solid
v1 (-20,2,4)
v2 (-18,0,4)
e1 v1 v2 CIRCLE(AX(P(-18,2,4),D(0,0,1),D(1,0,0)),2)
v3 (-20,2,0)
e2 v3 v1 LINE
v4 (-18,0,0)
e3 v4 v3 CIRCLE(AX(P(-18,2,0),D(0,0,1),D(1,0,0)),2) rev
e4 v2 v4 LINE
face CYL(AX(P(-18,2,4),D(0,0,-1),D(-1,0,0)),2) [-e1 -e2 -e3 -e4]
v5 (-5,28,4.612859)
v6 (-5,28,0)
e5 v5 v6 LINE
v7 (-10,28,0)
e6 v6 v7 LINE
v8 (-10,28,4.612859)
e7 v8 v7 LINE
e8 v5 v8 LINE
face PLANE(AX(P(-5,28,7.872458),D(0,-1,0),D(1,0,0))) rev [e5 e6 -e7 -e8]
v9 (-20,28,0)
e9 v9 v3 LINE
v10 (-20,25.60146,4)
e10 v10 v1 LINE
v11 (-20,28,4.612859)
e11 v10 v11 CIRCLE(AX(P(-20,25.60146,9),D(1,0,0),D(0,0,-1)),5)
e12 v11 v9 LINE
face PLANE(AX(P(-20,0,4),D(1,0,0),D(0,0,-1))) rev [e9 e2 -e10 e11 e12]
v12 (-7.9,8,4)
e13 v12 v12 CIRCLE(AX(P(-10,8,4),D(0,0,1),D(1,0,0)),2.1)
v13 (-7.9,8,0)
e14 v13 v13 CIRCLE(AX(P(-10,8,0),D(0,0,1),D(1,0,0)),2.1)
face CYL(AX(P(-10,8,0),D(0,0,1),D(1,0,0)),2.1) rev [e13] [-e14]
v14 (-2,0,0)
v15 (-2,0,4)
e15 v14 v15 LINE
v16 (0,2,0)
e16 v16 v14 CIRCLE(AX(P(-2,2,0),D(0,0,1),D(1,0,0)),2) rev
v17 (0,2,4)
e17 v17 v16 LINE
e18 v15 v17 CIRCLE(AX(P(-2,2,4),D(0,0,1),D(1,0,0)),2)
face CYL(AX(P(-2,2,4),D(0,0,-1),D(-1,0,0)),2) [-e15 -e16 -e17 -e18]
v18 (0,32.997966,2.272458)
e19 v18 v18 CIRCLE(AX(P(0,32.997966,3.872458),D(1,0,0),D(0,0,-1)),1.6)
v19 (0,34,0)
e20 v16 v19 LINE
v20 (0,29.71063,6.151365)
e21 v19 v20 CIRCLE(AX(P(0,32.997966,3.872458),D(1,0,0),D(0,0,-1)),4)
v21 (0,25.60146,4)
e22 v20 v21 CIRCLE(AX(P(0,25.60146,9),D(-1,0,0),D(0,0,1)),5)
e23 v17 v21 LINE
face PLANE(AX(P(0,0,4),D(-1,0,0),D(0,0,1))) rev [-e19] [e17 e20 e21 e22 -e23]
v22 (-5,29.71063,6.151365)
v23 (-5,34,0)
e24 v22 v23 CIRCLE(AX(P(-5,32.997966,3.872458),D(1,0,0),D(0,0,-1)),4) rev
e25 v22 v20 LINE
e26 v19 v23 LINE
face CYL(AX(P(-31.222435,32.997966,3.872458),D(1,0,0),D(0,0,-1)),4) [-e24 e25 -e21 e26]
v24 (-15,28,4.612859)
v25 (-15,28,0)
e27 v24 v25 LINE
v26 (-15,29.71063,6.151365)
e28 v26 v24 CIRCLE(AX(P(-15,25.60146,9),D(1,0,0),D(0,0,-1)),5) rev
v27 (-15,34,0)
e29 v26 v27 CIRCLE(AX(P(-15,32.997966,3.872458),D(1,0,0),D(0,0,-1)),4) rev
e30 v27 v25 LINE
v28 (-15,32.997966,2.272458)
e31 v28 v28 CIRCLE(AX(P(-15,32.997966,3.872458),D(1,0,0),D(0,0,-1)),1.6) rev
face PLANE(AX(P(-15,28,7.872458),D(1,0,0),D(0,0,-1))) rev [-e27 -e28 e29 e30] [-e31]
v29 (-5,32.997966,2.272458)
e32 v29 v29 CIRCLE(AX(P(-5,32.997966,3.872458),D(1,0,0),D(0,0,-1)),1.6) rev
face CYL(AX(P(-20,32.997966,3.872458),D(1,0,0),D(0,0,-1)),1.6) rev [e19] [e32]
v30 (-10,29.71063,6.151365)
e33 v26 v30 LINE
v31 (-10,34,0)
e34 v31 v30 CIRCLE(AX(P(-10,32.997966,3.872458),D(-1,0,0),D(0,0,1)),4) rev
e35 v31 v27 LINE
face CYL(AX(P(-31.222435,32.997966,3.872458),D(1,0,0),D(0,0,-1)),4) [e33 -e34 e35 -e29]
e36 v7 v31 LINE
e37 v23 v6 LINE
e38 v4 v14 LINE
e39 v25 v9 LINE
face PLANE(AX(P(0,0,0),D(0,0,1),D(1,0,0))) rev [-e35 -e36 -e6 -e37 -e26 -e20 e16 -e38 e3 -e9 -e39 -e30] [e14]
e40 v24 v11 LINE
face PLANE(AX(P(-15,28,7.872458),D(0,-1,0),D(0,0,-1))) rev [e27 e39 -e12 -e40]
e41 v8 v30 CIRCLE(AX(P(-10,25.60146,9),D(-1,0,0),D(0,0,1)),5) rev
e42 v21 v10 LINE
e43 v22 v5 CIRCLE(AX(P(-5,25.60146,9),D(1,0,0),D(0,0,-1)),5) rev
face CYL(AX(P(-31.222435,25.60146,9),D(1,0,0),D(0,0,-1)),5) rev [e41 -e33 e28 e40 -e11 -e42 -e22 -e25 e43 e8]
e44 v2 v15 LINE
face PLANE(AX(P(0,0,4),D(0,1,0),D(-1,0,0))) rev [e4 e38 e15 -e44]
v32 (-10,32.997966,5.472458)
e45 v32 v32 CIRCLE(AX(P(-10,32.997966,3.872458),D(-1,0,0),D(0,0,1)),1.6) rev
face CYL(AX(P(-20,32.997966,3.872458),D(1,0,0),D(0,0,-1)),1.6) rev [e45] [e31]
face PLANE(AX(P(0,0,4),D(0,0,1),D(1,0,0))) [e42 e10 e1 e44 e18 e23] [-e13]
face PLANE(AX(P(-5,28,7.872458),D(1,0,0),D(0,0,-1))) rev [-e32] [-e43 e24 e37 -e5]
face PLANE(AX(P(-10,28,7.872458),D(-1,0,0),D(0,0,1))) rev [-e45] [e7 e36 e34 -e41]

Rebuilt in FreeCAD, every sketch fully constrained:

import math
import FreeCAD as App
import Part
import Sketcher


def edges_at(feature, points):
    """Names of the edges that pass closest to the given points."""
    edges = feature.Shape.Edges
    near = lambda p: min(range(len(edges)), key=lambda i: edges[i].distToShape(Part.Vertex(*p))[0])
    return sorted({f"Edge{near(p) + 1}" for p in points})

doc = App.newDocument("Part")
params = doc.addObject("Spreadsheet::Sheet", "Params")
for row, (alias, value) in enumerate([
    ("sketch1_width", "20 mm"),
    ("sketch1_height", "34 mm"),
    ("pad1_length", "4 mm"),
    ("sketch2_radius", "4 mm"),
    ("sketch2_width", "5 mm"),
    ("sketch2_height", "4 mm"),
    ("pad2_length", "20 mm"),
    ("fillet_radius", "5 mm"),
    ("sketch3_diameter", "3.2 mm"),
    ("sketch4_diameter", "4.2 mm"),
    ("fillet2_radius", "2 mm"),
    ("sketch5_width", "5 mm"),
    ("sketch5_height", "12 mm"),
], start=1):
    params.set(f"A{row}", alias)
    params.set(f"B{row}", "=" + value)
    params.setAlias(f"B{row}", alias)

body = doc.addObject("PartDesign::Body", "Body")

# Sketch on XY plane
sketch1 = doc.addObject("Sketcher::SketchObject", "Sketch")
body.addObject(sketch1)
sketch1.AttachmentSupport = (doc.XY_Plane, [""])
sketch1.MapMode = "FlatFace"
sketch1.addGeometry([
    Part.LineSegment(App.Vector(-20, 34, 0), App.Vector(-20, 0, 0)),
    Part.LineSegment(App.Vector(-20, 0, 0), App.Vector(0, 0, 0)),
    Part.LineSegment(App.Vector(0, 0, 0), App.Vector(0, 34, 0)),
    Part.LineSegment(App.Vector(0, 34, 0), App.Vector(-20, 34, 0)),
], False)
sketch1.addConstraint([
    Sketcher.Constraint("Coincident", 0, 2, 1, 1),
    Sketcher.Constraint("Coincident", 1, 2, 2, 1),
    Sketcher.Constraint("Coincident", 2, 2, 3, 1),
    Sketcher.Constraint("Coincident", 3, 2, 0, 1),
    Sketcher.Constraint("Vertical", 0),
    Sketcher.Constraint("Horizontal", 1),
    Sketcher.Constraint("Vertical", 2),
    Sketcher.Constraint("Horizontal", 3),
    Sketcher.Constraint("Coincident", 1, 2, -1, 1),
    Sketcher.Constraint("DistanceX", 1, 1, 1, 2, 20.0),
    Sketcher.Constraint("DistanceY", 0, 2, 0, 1, 34.0),
])
sketch1.setExpression("Constraints[9]", "Params.sketch1_width")
sketch1.setExpression("Constraints[10]", "Params.sketch1_height")
pad1 = doc.addObject("PartDesign::Pad", "Pad")
body.addObject(pad1)
pad1.Profile = sketch1
pad1.setExpression("Length", "Params.pad1_length")

# Sketch on YZ plane
sketch2 = doc.addObject("Sketcher::SketchObject", "Sketch001")
body.addObject(sketch2)
sketch2.AttachmentSupport = (doc.YZ_Plane, [""])
sketch2.MapMode = "FlatFace"
sketch2.addGeometry([
    Part.LineSegment(App.Vector(29, 4, 0), App.Vector(34, 4, 0)),
    Part.LineSegment(App.Vector(34, 4, 0), App.Vector(34, 0, 0)),
    Part.ArcOfCircle(Part.Circle(App.Vector(33, 3.9, 0), App.Vector(0, 0, 1), 4), math.radians(-75), math.radians(178)),
], False)
sketch2.addConstraint([
    Sketcher.Constraint("Coincident", 0, 2, 1, 1),
    Sketcher.Constraint("Coincident", 1, 2, 2, 1),
    Sketcher.Constraint("Coincident", 2, 2, 0, 1),
    Sketcher.Constraint("Horizontal", 0),
    Sketcher.Constraint("Vertical", 1),
    Sketcher.Constraint("PointOnObject", 1, 2, -1),
    Sketcher.Constraint("Radius", 2, 4.0),
    Sketcher.Constraint("DistanceX", 0, 1, 0, 2, 5.0),
    Sketcher.Constraint("DistanceY", 1, 2, 1, 1, 4.0),
    Sketcher.Constraint("DistanceX", -1, 1, 0, 2, 34.0),
])
sketch2.setExpression("Constraints[6]", "Params.sketch2_radius")
sketch2.setExpression("Constraints[7]", "Params.sketch2_width")
sketch2.setExpression("Constraints[8]", "Params.sketch2_height")
pad2 = doc.addObject("PartDesign::Pad", "Pad001")
body.addObject(pad2)
pad2.Profile = sketch2
pad2.setExpression("Length", "Params.pad2_length")
pad2.Reversed = True
doc.recompute()

fillet = doc.addObject("PartDesign::Fillet", "Fillet")
body.addObject(fillet)
fillet.Base = (pad2, edges_at(pad2, [(-10, 29, 4)]))
fillet.setExpression("Radius", "Params.fillet_radius")

# Sketch on YZ plane
sketch3 = doc.addObject("Sketcher::SketchObject", "Sketch002")
body.addObject(sketch3)
sketch3.AttachmentSupport = (doc.YZ_Plane, [""])
sketch3.MapMode = "FlatFace"
sketch3.addGeometry(Part.Circle(App.Vector(33, 3.9, 0), App.Vector(0, 0, 1), 1.6), False)
sketch3.addConstraint([
    Sketcher.Constraint("Diameter", 0, 3.2),
    Sketcher.Constraint("DistanceX", -1, 1, 0, 3, 32.997966),
    Sketcher.Constraint("DistanceY", -1, 1, 0, 3, 3.872458),
])
sketch3.setExpression("Constraints[0]", "Params.sketch3_diameter")
pocket1 = doc.addObject("PartDesign::Pocket", "Pocket")
body.addObject(pocket1)
pocket1.Profile = sketch3
pocket1.Type = "ThroughAll"

# Sketch on XY plane
sketch4 = doc.addObject("Sketcher::SketchObject", "Sketch003")
body.addObject(sketch4)
sketch4.AttachmentSupport = (doc.XY_Plane, [""])
sketch4.MapMode = "FlatFace"
sketch4.AttachmentOffset = App.Placement(App.Vector(0, 0, 4), App.Rotation())
sketch4.addGeometry(Part.Circle(App.Vector(-10, 8, 0), App.Vector(0, 0, 1), 2.1), False)
sketch4.addConstraint([
    Sketcher.Constraint("Diameter", 0, 4.2),
    Sketcher.Constraint("DistanceX", 0, 3, -1, 1, 10.0),
    Sketcher.Constraint("DistanceY", -1, 1, 0, 3, 8.0),
])
sketch4.setExpression("Constraints[0]", "Params.sketch4_diameter")
pocket2 = doc.addObject("PartDesign::Pocket", "Pocket001")
body.addObject(pocket2)
pocket2.Profile = sketch4
pocket2.Type = "ThroughAll"
doc.recompute()

fillet2 = doc.addObject("PartDesign::Fillet", "Fillet001")
body.addObject(fillet2)
fillet2.Base = (pocket2, edges_at(pocket2, [(0, 0, 2), (-20, 0, 2)]))
fillet2.setExpression("Radius", "Params.fillet2_radius")

# Sketch on XY plane
sketch5 = doc.addObject("Sketcher::SketchObject", "Sketch004")
body.addObject(sketch5)
sketch5.AttachmentSupport = (doc.XY_Plane, [""])
sketch5.MapMode = "FlatFace"
sketch5.addGeometry([
    Part.LineSegment(App.Vector(-5, 40, 0), App.Vector(-5, 28, 0)),  # 0
    Part.LineSegment(App.Vector(-5, 28, 0), App.Vector(-10, 28, 0)),  # 1
    Part.LineSegment(App.Vector(-10, 28, 0), App.Vector(-10, 40, 0)),  # 2
    Part.LineSegment(App.Vector(-10, 40, 0), App.Vector(-5, 40, 0)),  # 3
    Part.LineSegment(App.Vector(-15, 40, 0), App.Vector(-15, 28, 0)),  # 4
    Part.LineSegment(App.Vector(-15, 28, 0), App.Vector(-20, 28, 0)),  # 5
    Part.LineSegment(App.Vector(-20, 28, 0), App.Vector(-20, 40, 0)),  # 6
    Part.LineSegment(App.Vector(-20, 40, 0), App.Vector(-15, 40, 0)),  # 7
], False)
sketch5.addConstraint([
    Sketcher.Constraint("Coincident", 0, 2, 1, 1),
    Sketcher.Constraint("Coincident", 1, 2, 2, 1),
    Sketcher.Constraint("Coincident", 2, 2, 3, 1),
    Sketcher.Constraint("Coincident", 3, 2, 0, 1),
    Sketcher.Constraint("Coincident", 4, 2, 5, 1),
    Sketcher.Constraint("Coincident", 5, 2, 6, 1),
    Sketcher.Constraint("Coincident", 6, 2, 7, 1),
    Sketcher.Constraint("Coincident", 7, 2, 4, 1),
    Sketcher.Constraint("Vertical", 0),
    Sketcher.Constraint("Horizontal", 1),
    Sketcher.Constraint("Vertical", 2),
    Sketcher.Constraint("Horizontal", 3),
    Sketcher.Constraint("Vertical", 4),
    Sketcher.Constraint("Horizontal", 5),
    Sketcher.Constraint("Vertical", 6),
    Sketcher.Constraint("Horizontal", 7),
    Sketcher.Constraint("Horizontal", 1, 2, 4, 2),
    Sketcher.Constraint("Horizontal", 3, 2, 6, 2),
    Sketcher.Constraint("Equal", 3, 5),
    Sketcher.Constraint("DistanceX", 1, 2, 1, 1, 5.0),
    Sketcher.Constraint("DistanceY", 0, 2, 0, 1, 12.0),
    Sketcher.Constraint("DistanceX", 0, 2, -1, 1, 5.0),
    Sketcher.Constraint("DistanceY", -1, 1, 0, 2, 28.0),
    Sketcher.Constraint("DistanceX", 4, 2, -1, 1, 15.0),
])
sketch5.setExpression("Constraints[19]", "Params.sketch5_width")
sketch5.setExpression("Constraints[20]", "Params.sketch5_height")
pocket3 = doc.addObject("PartDesign::Pocket", "Pocket002")
body.addObject(pocket3)
pocket3.Profile = sketch5
pocket3.Type = "ThroughAll"
pocket3.Reversed = True

doc.recompute()
